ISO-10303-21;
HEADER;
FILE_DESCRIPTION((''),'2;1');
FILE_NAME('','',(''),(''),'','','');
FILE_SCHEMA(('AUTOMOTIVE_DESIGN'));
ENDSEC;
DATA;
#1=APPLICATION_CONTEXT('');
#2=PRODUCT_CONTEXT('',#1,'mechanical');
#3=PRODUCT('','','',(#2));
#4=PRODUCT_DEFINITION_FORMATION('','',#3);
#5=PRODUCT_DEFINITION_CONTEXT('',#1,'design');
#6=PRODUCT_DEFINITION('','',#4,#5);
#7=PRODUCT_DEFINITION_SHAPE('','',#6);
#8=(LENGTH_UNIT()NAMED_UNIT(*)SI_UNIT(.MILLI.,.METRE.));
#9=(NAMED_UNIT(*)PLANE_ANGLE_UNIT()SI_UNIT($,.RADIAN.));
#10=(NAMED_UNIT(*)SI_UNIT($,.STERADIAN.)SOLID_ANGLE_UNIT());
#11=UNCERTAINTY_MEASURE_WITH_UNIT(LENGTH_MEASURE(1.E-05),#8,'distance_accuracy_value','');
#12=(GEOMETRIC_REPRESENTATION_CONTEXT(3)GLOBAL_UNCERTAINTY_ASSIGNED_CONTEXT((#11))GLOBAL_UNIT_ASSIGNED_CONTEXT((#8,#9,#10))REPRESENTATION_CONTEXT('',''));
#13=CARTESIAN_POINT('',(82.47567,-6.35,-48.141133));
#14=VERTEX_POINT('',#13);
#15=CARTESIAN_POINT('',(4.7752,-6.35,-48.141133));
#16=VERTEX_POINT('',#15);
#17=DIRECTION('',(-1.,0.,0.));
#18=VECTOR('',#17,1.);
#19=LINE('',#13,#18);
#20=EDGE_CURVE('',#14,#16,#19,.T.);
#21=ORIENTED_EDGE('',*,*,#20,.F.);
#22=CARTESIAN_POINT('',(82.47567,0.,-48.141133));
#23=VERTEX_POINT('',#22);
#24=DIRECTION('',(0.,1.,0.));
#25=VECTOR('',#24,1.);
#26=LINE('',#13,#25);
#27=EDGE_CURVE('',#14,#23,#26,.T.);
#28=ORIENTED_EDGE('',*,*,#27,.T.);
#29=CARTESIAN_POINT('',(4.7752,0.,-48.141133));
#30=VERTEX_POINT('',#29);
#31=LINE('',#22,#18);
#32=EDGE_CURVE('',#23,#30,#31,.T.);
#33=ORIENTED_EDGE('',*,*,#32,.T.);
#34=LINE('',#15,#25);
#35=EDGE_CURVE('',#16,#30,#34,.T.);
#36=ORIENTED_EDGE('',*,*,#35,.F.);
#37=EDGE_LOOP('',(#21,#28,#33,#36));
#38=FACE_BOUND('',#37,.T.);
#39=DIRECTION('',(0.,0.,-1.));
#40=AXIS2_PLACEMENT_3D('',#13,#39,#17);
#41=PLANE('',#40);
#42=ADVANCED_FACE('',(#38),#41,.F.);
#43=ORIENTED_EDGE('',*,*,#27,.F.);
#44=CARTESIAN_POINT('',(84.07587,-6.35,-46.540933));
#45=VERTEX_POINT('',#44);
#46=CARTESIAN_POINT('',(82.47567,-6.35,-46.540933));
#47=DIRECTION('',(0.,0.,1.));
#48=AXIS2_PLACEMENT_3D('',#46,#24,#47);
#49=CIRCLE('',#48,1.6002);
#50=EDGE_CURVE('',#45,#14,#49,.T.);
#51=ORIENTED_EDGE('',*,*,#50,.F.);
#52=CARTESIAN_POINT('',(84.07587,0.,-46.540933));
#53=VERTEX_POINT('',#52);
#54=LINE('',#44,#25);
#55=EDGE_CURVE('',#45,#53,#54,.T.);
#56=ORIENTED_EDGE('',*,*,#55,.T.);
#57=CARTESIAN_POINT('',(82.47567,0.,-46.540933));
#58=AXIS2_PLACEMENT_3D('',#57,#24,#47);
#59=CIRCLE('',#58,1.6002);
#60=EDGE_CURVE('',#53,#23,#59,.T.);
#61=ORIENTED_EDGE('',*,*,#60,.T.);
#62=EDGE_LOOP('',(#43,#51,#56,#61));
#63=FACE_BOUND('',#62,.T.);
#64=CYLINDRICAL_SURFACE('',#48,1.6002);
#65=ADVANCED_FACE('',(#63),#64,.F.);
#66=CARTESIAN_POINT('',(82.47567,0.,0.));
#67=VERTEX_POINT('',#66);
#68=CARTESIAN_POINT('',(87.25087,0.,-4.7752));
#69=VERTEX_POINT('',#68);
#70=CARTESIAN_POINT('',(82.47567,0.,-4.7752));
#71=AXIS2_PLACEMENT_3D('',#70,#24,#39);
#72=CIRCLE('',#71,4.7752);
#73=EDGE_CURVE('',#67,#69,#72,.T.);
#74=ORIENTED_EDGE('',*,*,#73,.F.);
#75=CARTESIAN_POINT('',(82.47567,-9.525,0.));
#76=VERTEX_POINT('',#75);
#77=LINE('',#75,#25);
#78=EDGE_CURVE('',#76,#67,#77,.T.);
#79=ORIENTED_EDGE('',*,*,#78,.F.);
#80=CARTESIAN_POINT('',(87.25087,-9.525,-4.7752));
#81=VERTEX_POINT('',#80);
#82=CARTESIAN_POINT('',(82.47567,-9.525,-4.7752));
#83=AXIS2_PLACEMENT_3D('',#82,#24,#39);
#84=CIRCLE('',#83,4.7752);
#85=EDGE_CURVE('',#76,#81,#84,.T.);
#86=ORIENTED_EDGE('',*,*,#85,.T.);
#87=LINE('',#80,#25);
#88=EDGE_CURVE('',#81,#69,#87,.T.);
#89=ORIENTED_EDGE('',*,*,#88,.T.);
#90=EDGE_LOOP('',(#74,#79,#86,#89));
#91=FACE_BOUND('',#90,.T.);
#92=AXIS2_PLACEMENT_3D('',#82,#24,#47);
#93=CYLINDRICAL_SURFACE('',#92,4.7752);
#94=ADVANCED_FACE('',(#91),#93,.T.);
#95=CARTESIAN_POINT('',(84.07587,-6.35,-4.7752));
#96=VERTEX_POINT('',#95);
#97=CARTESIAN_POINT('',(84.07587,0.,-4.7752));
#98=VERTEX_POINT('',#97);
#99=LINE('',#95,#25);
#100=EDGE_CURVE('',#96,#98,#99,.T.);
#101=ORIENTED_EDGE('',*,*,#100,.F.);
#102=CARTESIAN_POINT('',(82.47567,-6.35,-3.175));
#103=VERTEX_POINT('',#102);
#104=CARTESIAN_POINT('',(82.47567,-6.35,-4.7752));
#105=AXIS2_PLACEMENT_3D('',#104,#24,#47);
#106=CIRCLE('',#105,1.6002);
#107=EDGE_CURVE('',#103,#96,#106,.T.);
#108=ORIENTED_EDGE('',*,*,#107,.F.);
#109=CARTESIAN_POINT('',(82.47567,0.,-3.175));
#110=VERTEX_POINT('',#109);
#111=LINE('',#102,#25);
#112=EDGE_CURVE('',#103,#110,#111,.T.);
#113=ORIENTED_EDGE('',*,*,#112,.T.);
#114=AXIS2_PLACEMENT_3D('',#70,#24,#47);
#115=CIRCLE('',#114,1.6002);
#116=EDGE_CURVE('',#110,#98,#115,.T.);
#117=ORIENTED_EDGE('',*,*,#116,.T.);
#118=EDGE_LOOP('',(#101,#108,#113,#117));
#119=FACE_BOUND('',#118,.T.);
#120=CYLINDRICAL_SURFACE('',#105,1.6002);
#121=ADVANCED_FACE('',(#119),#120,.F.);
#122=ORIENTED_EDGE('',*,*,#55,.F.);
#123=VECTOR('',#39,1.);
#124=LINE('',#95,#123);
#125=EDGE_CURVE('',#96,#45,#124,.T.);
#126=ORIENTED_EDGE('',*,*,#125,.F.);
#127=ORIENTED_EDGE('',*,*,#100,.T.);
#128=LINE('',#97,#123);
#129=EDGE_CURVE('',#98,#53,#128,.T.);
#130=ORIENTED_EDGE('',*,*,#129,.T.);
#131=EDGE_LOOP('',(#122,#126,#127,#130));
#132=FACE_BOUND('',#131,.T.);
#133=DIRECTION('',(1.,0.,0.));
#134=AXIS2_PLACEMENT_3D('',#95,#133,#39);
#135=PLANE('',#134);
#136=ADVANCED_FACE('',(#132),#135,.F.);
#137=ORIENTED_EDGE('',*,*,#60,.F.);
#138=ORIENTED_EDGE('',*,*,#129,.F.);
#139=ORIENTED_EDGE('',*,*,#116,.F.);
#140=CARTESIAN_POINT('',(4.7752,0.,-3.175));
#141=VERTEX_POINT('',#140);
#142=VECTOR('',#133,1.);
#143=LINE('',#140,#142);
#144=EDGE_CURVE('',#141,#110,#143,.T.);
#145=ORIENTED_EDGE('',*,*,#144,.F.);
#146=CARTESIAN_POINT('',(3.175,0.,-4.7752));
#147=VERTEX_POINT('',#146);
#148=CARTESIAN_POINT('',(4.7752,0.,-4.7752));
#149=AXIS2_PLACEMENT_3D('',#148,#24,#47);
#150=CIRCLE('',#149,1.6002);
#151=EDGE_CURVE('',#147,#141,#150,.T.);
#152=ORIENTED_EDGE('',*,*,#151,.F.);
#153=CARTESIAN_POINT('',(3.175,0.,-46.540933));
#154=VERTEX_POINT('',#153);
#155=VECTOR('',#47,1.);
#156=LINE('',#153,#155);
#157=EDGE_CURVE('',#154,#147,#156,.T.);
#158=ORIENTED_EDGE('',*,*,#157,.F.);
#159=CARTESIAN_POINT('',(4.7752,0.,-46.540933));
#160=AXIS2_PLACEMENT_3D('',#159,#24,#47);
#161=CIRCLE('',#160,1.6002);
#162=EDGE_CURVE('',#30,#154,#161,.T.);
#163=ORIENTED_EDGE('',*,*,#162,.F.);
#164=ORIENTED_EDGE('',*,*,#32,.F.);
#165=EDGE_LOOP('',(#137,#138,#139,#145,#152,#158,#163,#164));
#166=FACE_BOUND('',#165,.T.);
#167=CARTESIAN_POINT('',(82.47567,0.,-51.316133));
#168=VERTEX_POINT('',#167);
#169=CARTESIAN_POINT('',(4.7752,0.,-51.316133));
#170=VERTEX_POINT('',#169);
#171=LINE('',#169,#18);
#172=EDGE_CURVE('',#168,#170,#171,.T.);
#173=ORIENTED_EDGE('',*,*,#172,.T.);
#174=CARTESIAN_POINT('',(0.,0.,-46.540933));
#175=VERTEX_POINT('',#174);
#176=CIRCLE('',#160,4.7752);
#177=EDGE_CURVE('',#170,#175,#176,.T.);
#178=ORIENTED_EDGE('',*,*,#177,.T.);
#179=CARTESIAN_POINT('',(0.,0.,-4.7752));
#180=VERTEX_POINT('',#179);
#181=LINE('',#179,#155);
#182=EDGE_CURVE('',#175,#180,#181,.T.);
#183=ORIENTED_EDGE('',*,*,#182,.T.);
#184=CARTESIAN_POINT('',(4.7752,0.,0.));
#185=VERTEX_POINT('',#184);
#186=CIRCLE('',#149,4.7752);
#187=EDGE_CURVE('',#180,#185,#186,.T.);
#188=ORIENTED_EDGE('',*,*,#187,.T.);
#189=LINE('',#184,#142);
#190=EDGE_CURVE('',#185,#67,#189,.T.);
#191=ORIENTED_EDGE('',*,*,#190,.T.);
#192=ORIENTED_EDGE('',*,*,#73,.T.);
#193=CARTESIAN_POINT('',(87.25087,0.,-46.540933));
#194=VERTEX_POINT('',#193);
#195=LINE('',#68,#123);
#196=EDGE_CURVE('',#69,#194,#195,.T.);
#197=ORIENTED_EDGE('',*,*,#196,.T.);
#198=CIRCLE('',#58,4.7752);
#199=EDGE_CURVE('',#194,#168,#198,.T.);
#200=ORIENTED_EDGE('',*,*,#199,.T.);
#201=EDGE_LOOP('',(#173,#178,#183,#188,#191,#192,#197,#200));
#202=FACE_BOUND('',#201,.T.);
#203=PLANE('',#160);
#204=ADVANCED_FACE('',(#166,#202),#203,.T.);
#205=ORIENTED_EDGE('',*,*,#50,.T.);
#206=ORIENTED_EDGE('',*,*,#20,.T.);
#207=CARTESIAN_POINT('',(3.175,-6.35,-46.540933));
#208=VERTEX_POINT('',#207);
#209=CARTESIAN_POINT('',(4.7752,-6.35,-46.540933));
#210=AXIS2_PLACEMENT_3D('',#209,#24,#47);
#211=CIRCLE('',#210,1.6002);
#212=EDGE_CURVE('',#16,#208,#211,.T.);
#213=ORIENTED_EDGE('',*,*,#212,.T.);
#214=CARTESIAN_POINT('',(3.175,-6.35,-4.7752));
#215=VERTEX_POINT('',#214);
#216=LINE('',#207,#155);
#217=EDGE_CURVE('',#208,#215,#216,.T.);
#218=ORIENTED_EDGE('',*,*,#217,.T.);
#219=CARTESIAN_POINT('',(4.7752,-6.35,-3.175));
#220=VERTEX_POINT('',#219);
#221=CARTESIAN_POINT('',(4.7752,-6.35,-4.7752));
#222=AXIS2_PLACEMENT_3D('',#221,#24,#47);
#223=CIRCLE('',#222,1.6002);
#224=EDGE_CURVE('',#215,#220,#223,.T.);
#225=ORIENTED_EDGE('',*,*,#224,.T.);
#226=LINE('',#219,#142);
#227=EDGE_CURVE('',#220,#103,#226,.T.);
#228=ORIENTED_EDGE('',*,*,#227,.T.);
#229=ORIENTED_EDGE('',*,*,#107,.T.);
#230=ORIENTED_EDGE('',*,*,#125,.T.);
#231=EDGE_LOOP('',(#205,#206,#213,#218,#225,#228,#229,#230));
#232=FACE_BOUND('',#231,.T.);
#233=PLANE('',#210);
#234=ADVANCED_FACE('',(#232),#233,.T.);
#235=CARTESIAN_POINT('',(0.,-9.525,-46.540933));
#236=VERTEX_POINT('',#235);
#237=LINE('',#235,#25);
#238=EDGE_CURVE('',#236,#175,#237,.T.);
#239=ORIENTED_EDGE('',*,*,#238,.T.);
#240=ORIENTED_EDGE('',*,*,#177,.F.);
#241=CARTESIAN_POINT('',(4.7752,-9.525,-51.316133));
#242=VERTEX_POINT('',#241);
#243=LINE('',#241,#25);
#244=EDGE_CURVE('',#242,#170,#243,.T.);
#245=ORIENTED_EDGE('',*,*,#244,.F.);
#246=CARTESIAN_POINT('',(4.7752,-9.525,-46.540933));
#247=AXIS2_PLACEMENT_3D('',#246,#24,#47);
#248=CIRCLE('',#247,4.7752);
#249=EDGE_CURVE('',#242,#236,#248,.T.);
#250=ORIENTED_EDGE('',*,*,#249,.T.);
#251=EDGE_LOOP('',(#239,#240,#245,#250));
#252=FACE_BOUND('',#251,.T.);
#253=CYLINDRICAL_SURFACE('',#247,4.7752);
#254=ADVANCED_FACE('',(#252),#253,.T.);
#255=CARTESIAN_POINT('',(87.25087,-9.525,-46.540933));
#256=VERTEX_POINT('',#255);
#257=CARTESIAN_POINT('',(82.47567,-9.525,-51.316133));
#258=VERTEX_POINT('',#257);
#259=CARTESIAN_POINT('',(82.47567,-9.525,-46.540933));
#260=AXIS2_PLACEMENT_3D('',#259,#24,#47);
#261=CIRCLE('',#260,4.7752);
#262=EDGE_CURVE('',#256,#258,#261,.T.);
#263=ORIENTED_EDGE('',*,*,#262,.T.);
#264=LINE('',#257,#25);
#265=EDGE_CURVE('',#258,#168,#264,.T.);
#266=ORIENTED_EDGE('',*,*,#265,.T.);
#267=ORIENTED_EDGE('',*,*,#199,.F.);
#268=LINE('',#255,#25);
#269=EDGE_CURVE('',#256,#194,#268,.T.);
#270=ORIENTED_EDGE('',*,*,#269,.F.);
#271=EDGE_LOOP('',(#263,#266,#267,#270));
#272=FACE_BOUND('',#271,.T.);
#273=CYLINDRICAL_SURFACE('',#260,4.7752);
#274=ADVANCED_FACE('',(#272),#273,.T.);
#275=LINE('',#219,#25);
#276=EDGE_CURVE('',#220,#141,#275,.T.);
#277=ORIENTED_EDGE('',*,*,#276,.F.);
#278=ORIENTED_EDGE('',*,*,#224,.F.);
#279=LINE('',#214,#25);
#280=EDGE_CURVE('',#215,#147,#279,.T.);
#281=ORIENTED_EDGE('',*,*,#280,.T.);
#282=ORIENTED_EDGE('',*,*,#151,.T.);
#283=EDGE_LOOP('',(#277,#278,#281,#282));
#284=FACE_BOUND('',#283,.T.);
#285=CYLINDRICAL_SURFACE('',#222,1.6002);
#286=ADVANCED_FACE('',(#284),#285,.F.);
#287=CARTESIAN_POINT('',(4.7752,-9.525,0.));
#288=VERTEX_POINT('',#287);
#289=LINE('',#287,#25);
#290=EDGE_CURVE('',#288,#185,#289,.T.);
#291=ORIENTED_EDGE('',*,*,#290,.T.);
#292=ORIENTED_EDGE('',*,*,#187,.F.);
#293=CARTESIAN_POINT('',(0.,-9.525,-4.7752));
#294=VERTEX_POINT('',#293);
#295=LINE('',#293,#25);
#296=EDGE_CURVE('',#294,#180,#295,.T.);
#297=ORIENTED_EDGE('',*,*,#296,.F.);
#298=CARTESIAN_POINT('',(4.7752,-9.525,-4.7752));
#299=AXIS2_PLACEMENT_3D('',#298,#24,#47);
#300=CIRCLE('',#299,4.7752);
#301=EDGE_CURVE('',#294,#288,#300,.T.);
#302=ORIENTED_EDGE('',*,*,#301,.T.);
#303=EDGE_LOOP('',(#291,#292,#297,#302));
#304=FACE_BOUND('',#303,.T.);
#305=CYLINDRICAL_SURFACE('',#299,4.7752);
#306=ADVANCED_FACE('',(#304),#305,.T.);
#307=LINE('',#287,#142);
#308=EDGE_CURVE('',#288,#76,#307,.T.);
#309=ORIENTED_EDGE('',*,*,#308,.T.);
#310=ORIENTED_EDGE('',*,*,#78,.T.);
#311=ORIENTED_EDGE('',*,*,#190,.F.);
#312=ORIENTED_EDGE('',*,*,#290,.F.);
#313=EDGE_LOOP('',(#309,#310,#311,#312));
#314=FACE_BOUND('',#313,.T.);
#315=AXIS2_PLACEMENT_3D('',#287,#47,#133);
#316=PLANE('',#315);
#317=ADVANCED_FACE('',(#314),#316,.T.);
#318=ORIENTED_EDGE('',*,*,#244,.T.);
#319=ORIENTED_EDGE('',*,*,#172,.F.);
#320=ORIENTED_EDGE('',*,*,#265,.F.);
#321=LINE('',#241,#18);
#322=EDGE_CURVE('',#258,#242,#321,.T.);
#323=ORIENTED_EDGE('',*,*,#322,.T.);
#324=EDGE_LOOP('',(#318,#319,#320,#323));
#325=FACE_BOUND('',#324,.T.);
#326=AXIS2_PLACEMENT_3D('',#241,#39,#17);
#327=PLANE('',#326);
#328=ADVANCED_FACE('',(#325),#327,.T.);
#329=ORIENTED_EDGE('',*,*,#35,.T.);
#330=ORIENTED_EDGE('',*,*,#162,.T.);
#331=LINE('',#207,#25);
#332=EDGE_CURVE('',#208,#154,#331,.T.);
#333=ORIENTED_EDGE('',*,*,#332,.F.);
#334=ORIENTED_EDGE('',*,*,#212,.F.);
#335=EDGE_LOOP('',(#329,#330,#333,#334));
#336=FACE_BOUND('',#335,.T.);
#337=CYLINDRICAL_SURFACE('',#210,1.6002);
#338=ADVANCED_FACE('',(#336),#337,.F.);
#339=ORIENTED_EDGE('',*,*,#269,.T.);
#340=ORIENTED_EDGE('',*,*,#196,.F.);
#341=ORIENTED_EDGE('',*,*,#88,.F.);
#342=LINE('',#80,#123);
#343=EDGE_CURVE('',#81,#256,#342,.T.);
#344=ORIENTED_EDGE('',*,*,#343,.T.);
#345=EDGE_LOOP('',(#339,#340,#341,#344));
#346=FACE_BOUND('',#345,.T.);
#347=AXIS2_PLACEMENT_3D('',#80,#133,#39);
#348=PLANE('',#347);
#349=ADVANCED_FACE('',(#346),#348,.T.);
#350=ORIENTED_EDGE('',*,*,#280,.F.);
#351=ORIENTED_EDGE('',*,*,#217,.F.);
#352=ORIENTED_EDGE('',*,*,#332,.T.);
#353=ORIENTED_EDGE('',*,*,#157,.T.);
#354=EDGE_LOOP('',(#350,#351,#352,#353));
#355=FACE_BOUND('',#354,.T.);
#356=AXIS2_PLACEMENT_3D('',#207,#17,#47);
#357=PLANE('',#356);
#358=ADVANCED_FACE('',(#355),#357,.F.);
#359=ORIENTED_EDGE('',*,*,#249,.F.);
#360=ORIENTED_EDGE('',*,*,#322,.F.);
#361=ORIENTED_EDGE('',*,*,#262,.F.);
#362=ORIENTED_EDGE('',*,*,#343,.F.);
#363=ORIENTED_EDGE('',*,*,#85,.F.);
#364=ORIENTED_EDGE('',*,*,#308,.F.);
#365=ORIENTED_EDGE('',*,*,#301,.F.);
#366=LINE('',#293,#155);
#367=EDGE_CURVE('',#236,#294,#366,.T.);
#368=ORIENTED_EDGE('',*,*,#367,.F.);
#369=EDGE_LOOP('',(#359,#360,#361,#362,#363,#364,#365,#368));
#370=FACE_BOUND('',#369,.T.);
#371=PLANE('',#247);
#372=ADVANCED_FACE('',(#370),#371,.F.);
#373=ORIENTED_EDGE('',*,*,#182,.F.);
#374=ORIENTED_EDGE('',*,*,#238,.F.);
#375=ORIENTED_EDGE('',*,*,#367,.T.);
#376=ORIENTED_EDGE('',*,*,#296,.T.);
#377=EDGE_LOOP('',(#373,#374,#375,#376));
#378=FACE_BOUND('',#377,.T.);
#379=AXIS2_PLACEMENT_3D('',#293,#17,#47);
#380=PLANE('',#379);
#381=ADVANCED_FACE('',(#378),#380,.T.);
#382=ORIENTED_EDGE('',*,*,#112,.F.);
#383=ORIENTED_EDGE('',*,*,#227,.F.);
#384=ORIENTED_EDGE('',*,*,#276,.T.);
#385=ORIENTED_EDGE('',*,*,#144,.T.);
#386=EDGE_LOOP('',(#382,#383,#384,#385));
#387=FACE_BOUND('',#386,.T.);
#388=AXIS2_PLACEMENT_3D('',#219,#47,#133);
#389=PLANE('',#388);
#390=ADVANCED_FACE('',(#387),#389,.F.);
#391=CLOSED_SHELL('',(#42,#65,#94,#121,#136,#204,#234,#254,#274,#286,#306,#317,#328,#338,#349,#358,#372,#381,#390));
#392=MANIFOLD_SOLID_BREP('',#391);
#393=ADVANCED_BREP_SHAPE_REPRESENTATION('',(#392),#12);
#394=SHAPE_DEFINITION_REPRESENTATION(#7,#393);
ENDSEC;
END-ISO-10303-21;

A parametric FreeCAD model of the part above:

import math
import FreeCAD as App
import Part
import Sketcher

V = App.Vector
Q = App.Units.Quantity

doc = App.newDocument("Part")
body = doc.addObject("PartDesign::Body", "Body")

sketch1 = body.newObject("Sketcher::SketchObject", "Sketch")
sketch1.AttachmentSupport = (doc.getObject("XZ_Plane"), [""])
sketch1.MapMode = "FlatFace"
sketch1.addGeometry([
    Part.LineSegment(V(4.8, 0, 0), V(82.5, 0, 0)),
    Part.ArcOfCircle(Part.Circle(V(82.5, -4.8, 0), V(0, 0, 1), 4.8), math.radians(0), math.radians(90)),
    Part.LineSegment(V(87.3, -4.8, 0), V(87.3, -46.5, 0)),
    Part.ArcOfCircle(Part.Circle(V(82.5, -46.5, 0), V(0, 0, 1), 4.8), math.radians(-90), math.radians(0)),
    Part.LineSegment(V(82.5, -51.3, 0), V(4.8, -51.3, 0)),
    Part.ArcOfCircle(Part.Circle(V(4.8, -46.5, 0), V(0, 0, 1), 4.8), math.radians(180), math.radians(270)),
    Part.LineSegment(V(0, -46.5, 0), V(0, -4.8, 0)),
    Part.ArcOfCircle(Part.Circle(V(4.8, -4.8, 0), V(0, 0, 1), 4.8), math.radians(90), math.radians(180)),
], False)
sketch1.addConstraint([
    Sketcher.Constraint("Tangent", 0, 2, 1, 2),
    Sketcher.Constraint("Tangent", 1, 1, 2, 1),
    Sketcher.Constraint("Tangent", 2, 2, 3, 2),
    Sketcher.Constraint("Tangent", 3, 1, 4, 1),
    Sketcher.Constraint("Tangent", 4, 2, 5, 2),
    Sketcher.Constraint("Tangent", 5, 1, 6, 1),
    Sketcher.Constraint("Tangent", 6, 2, 7, 2),
    Sketcher.Constraint("Tangent", 7, 1, 0, 1),
    Sketcher.Constraint("Horizontal", 0),
    Sketcher.Constraint("Vertical", 2),
    Sketcher.Constraint("Horizontal", 4),
    Sketcher.Constraint("Vertical", 6),
    Sketcher.Constraint("Equal", 1, 3),
    Sketcher.Constraint("Equal", 3, 5),
    Sketcher.Constraint("Equal", 5, 7),
    Sketcher.Constraint("PointOnObject", 0, 2, -1),
    Sketcher.Constraint("PointOnObject", 5, 1, -2),
    Sketcher.Constraint("Radius", 1, Q("0.188 in")),
    Sketcher.Constraint("DistanceX", 0, 1, 0, 2, 77.70047),
    Sketcher.Constraint("DistanceY", 2, 2, 2, 1, 41.765733),
])
pad1 = body.newObject("PartDesign::Pad", "Pad")
pad1.Profile = sketch1
pad1.Length = Q("0.375 in")

sketch2 = body.newObject("Sketcher::SketchObject", "Sketch001")
sketch2.AttachmentSupport = (doc.getObject("XZ_Plane"), [""])
sketch2.MapMode = "FlatFace"
sketch2.addGeometry([
    Part.LineSegment(V(3.2, -46.5, 0), V(3.2, -4.8, 0)),
    Part.ArcOfCircle(Part.Circle(V(4.8, -4.8, 0), V(0, 0, 1), 1.6), math.radians(90), math.radians(180)),
    Part.LineSegment(V(4.8, -3.2, 0), V(82.5, -3.2, 0)),
    Part.ArcOfCircle(Part.Circle(V(82.5, -4.8, 0), V(0, 0, 1), 1.6), math.radians(0), math.radians(90)),
    Part.LineSegment(V(84.1, -4.8, 0), V(84.1, -46.5, 0)),
    Part.ArcOfCircle(Part.Circle(V(82.5, -46.5, 0), V(0, 0, 1), 1.6), math.radians(-90), math.radians(0)),
    Part.LineSegment(V(82.5, -48.1, 0), V(4.8, -48.1, 0)),
    Part.ArcOfCircle(Part.Circle(V(4.8, -46.5, 0), V(0, 0, 1), 1.6), math.radians(-180), math.radians(-90)),
], False)
sketch2.addConstraint([
    Sketcher.Constraint("Tangent", 0, 2, 1, 2),
    Sketcher.Constraint("Tangent", 1, 1, 2, 1),
    Sketcher.Constraint("Tangent", 2, 2, 3, 2),
    Sketcher.Constraint("Tangent", 3, 1, 4, 1),
    Sketcher.Constraint("Tangent", 4, 2, 5, 2),
    Sketcher.Constraint("Tangent", 5, 1, 6, 1),
    Sketcher.Constraint("Tangent", 6, 2, 7, 2),
    Sketcher.Constraint("Tangent", 7, 1, 0, 1),
    Sketcher.Constraint("Vertical", 0),
    Sketcher.Constraint("Horizontal", 2),
    Sketcher.Constraint("Vertical", 4),
    Sketcher.Constraint("Horizontal", 6),
    Sketcher.Constraint("Equal", 1, 3),
    Sketcher.Constraint("Equal", 3, 5),
    Sketcher.Constraint("Equal", 5, 7),
    Sketcher.Constraint("Radius", 1, Q("0.063 in")),
    Sketcher.Constraint("DistanceX", -1, 1, 1, 3, Q("0.188 in")),
    Sketcher.Constraint("DistanceY", 1, 3, -1, 1, Q("0.188 in")),
    Sketcher.Constraint("DistanceX", 2, 1, 2, 2, 77.70047),
    Sketcher.Constraint("DistanceY", 0, 1, 0, 2, 41.765733),
])
pocket1 = body.newObject("PartDesign::Pocket", "Pocket")
pocket1.Profile = sketch2
pocket1.Length = Q("0.25 in")
pocket1.Reversed = True

doc.recompute()
